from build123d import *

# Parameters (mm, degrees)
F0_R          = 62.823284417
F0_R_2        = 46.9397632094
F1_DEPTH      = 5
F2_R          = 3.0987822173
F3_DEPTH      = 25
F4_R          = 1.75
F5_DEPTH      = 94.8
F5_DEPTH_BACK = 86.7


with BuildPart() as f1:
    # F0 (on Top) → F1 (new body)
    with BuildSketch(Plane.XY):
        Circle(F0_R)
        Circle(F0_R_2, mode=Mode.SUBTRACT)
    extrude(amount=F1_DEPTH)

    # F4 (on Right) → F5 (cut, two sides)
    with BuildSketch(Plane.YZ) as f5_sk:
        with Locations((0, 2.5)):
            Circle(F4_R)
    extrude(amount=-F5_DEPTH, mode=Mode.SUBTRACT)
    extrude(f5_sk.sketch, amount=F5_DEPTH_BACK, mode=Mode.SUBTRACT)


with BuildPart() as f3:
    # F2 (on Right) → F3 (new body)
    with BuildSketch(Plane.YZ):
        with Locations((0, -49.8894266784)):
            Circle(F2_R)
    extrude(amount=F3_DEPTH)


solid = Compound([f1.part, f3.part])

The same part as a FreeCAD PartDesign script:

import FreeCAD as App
import Part
import Sketcher
from FreeCAD import Vector
Q = App.Units.Quantity

doc = App.newDocument("Part")
params = doc.addObject("Spreadsheet::Sheet", "Params")
for row, (alias, value) in enumerate([
    ("pad1_length", "5 mm"),
    ("sketch2_diameter", "3.5 mm"),
    ("pad2_length", "25 mm"),
], start=1):
    params.set(f"A{row}", alias)
    params.set(f"B{row}", "=" + value)
    params.setAlias(f"B{row}", alias)

body = doc.addObject("PartDesign::Body", "Body")

sketch1 = body.newObject("Sketcher::SketchObject", "Sketch")
sketch1.AttachmentSupport = (doc.getObject("XY_Plane"), [""])
sketch1.MapMode = "FlatFace"
sketch1.addGeometry(Part.Circle(Vector(0, 0, 0), Vector(0, 0, 1), 63), False)
sketch1.addGeometry(Part.Circle(Vector(0, 0, 0), Vector(0, 0, 1), 47), False)
sketch1.addConstraint(Sketcher.Constraint("Coincident", 0, 3, -1, 1))
sketch1.addConstraint(Sketcher.Constraint("Coincident", 1, 3, -1, 1))
sketch1.addConstraint(Sketcher.Constraint("Diameter", 0, Q("125.646569 mm")))
sketch1.addConstraint(Sketcher.Constraint("Diameter", 1, Q("93.879526 mm")))
pad1 = body.newObject("PartDesign::Pad", "Pad")
pad1.Profile = sketch1
pad1.setExpression("Length", "Params.pad1_length")

sketch2 = body.newObject("Sketcher::SketchObject", "Sketch001")
sketch2.AttachmentSupport = (doc.getObject("YZ_Plane"), [""])
sketch2.MapMode = "FlatFace"
sketch2.addGeometry(Part.Circle(Vector(0, 2.5, 0), Vector(0, 0, 1), 1.8), False)
sketch2.addConstraint(Sketcher.Constraint("PointOnObject", 0, 3, -2))
sketch2.addConstraint(Sketcher.Constraint("Diameter", 0, Q("3.5 mm")))
sketch2.addConstraint(Sketcher.Constraint("DistanceY", -1, 1, 0, 3, Q("2.5 mm")))
sketch2.setExpression("Constraints[1]", "Params.sketch2_diameter")
pocket1 = body.newObject("PartDesign::Pocket", "Pocket")
pocket1.Profile = sketch2
pocket1.Type = "ThroughAll"
pocket1.Midplane = True
body2 = doc.addObject("PartDesign::Body", "Body001")

sketch3 = body2.newObject("Sketcher::SketchObject", "Sketch002")
sketch3.AttachmentSupport = (doc.getObject("YZ_Plane001"), [""])
sketch3.MapMode = "FlatFace"
sketch3.addGeometry(Part.Circle(Vector(0, -49.9, 0), Vector(0, 0, 1), 3.1), False)
sketch3.addConstraint(Sketcher.Constraint("PointOnObject", 0, 3, -2))
sketch3.addConstraint(Sketcher.Constraint("Diameter", 0, Q("6.197564 mm")))
sketch3.addConstraint(Sketcher.Constraint("DistanceY", 0, 3, -1, 1, Q("49.889427 mm")))
pad2 = body2.newObject("PartDesign::Pad", "Pad001")
pad2.Profile = sketch3
pad2.setExpression("Length", "Params.pad2_length")

doc.recompute()
